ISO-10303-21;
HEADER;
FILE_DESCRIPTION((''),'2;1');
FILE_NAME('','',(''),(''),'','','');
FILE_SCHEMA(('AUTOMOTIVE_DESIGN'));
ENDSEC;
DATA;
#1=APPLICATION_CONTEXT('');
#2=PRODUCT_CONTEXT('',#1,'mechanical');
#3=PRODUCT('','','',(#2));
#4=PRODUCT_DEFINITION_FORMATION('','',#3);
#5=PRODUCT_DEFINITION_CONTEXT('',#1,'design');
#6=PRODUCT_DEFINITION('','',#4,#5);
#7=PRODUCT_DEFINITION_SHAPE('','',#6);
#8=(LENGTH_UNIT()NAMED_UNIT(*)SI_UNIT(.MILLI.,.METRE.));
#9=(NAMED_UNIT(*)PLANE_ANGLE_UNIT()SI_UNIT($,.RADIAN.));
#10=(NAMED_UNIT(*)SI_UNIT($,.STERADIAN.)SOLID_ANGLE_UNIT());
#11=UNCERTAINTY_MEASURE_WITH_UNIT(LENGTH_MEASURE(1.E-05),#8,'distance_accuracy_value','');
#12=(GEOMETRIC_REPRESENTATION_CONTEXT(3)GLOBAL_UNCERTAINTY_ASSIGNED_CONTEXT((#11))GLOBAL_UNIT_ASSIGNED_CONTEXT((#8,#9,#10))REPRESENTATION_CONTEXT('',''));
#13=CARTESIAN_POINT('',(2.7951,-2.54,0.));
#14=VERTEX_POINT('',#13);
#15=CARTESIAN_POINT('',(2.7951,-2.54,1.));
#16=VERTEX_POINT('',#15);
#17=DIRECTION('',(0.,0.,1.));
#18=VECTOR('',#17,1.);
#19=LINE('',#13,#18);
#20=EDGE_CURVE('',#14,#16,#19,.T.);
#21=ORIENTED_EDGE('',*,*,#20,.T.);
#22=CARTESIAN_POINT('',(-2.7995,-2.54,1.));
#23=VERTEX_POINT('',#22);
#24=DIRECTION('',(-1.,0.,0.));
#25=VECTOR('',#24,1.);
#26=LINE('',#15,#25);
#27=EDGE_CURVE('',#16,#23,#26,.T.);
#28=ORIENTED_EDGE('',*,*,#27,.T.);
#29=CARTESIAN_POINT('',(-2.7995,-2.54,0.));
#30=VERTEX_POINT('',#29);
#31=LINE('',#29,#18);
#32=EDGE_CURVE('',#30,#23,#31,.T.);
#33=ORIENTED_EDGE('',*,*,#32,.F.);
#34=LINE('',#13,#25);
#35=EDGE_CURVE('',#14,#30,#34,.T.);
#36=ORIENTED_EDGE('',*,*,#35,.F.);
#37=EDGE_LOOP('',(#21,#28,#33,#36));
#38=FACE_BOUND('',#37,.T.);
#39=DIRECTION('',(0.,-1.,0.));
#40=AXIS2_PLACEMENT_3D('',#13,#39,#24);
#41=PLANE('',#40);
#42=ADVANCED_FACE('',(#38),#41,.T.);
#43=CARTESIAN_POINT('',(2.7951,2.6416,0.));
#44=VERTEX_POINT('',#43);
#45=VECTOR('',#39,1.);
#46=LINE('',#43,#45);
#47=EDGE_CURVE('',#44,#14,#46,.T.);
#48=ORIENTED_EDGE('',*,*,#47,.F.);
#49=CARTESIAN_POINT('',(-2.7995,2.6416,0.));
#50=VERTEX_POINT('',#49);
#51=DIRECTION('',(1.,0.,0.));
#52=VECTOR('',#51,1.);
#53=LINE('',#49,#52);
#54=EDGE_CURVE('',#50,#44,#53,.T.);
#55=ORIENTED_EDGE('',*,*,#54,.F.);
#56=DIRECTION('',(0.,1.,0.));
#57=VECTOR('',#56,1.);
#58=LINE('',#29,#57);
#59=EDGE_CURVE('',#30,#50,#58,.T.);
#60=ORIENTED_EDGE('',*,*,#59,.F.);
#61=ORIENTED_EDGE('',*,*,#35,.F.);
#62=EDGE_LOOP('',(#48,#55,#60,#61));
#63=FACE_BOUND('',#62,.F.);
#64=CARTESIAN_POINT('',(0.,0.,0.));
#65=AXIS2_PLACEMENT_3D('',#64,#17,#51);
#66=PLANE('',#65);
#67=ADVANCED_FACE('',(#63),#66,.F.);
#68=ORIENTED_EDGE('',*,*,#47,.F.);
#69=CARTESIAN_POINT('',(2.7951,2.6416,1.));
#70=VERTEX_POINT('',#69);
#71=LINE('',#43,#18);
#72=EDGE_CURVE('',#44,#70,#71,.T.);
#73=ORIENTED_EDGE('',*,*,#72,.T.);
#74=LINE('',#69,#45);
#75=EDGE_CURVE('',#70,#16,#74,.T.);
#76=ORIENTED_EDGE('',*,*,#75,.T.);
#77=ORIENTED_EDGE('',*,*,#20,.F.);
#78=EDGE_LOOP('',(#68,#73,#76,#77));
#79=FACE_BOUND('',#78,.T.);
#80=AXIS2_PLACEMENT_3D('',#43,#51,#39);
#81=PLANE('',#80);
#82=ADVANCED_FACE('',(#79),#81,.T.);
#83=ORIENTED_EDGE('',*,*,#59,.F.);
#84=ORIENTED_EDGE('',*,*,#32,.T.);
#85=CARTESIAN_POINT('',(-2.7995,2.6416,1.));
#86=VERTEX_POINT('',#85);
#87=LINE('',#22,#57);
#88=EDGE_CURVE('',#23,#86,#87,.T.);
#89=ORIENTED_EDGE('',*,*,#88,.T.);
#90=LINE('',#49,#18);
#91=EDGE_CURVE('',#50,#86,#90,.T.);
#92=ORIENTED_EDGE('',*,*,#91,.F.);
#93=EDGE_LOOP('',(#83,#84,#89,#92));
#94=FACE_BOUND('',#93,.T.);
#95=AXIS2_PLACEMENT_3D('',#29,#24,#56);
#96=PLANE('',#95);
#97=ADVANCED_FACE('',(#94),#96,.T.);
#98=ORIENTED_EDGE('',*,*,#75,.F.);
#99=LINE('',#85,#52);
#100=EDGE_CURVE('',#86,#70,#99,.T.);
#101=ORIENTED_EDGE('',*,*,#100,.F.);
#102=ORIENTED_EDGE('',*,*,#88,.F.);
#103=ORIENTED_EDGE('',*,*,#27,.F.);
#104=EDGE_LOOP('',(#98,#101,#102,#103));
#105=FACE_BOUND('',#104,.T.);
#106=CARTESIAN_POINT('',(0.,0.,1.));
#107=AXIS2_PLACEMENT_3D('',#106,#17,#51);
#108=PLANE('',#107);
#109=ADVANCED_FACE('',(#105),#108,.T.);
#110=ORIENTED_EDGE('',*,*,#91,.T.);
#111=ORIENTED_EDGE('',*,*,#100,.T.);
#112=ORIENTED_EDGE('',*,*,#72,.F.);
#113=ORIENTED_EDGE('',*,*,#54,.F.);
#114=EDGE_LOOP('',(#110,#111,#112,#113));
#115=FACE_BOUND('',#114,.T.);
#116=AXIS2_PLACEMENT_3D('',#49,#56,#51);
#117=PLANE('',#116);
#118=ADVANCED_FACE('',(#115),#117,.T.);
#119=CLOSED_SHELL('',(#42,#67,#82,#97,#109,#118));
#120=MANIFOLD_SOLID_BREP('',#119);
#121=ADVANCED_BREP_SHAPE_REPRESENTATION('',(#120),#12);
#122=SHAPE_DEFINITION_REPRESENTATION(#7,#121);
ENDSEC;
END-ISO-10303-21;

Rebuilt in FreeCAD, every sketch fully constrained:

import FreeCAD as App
import Part
import Sketcher


def add_polygon(sketch, points):
    """Adds a closed chain of lines whose ends are joined by coincident constraints."""
    first, n = sketch.GeometryCount, len(points)
    for a, b in zip(points, points[1:] + points[:1]):
        sketch.addGeometry(Part.LineSegment(App.Vector(*a, 0), App.Vector(*b, 0)), False)
    for i in range(n):
        sketch.addConstraint(Sketcher.Constraint("Coincident", first + i, 2, first + (i + 1) % n, 1))

doc = App.newDocument("Part")
body = doc.addObject("PartDesign::Body", "Body")

# Sketch on XY plane
sketch1 = doc.addObject("Sketcher::SketchObject", "Sketch")
body.addObject(sketch1)
sketch1.AttachmentSupport = (doc.XY_Plane, [""])
sketch1.MapMode = "FlatFace"
add_polygon(sketch1, [(2.7951, 2.6416), (-2.7995, 2.6416), (-2.7995, -2.54), (2.7951, -2.54)])  # lines 0-3
sketch1.addConstraint([
    Sketcher.Constraint("Horizontal", 0),
    Sketcher.Constraint("Vertical", 1),
    Sketcher.Constraint("Horizontal", 2),
    Sketcher.Constraint("Vertical", 3),
    Sketcher.Constraint("DistanceY", 1, 2, -1, 1, 2.54),
    Sketcher.Constraint("DistanceX", 0, 2, 0, 1, 5.5946),
    Sketcher.Constraint("DistanceY", 1, 2, 1, 1, 5.1816),
    Sketcher.Constraint("DistanceX", -1, 1, 2, 2, 2.795),
])
pad1 = doc.addObject("PartDesign::Pad", "Pad")
body.addObject(pad1)
pad1.Profile = sketch1
pad1.Length = 1

doc.recompute()
